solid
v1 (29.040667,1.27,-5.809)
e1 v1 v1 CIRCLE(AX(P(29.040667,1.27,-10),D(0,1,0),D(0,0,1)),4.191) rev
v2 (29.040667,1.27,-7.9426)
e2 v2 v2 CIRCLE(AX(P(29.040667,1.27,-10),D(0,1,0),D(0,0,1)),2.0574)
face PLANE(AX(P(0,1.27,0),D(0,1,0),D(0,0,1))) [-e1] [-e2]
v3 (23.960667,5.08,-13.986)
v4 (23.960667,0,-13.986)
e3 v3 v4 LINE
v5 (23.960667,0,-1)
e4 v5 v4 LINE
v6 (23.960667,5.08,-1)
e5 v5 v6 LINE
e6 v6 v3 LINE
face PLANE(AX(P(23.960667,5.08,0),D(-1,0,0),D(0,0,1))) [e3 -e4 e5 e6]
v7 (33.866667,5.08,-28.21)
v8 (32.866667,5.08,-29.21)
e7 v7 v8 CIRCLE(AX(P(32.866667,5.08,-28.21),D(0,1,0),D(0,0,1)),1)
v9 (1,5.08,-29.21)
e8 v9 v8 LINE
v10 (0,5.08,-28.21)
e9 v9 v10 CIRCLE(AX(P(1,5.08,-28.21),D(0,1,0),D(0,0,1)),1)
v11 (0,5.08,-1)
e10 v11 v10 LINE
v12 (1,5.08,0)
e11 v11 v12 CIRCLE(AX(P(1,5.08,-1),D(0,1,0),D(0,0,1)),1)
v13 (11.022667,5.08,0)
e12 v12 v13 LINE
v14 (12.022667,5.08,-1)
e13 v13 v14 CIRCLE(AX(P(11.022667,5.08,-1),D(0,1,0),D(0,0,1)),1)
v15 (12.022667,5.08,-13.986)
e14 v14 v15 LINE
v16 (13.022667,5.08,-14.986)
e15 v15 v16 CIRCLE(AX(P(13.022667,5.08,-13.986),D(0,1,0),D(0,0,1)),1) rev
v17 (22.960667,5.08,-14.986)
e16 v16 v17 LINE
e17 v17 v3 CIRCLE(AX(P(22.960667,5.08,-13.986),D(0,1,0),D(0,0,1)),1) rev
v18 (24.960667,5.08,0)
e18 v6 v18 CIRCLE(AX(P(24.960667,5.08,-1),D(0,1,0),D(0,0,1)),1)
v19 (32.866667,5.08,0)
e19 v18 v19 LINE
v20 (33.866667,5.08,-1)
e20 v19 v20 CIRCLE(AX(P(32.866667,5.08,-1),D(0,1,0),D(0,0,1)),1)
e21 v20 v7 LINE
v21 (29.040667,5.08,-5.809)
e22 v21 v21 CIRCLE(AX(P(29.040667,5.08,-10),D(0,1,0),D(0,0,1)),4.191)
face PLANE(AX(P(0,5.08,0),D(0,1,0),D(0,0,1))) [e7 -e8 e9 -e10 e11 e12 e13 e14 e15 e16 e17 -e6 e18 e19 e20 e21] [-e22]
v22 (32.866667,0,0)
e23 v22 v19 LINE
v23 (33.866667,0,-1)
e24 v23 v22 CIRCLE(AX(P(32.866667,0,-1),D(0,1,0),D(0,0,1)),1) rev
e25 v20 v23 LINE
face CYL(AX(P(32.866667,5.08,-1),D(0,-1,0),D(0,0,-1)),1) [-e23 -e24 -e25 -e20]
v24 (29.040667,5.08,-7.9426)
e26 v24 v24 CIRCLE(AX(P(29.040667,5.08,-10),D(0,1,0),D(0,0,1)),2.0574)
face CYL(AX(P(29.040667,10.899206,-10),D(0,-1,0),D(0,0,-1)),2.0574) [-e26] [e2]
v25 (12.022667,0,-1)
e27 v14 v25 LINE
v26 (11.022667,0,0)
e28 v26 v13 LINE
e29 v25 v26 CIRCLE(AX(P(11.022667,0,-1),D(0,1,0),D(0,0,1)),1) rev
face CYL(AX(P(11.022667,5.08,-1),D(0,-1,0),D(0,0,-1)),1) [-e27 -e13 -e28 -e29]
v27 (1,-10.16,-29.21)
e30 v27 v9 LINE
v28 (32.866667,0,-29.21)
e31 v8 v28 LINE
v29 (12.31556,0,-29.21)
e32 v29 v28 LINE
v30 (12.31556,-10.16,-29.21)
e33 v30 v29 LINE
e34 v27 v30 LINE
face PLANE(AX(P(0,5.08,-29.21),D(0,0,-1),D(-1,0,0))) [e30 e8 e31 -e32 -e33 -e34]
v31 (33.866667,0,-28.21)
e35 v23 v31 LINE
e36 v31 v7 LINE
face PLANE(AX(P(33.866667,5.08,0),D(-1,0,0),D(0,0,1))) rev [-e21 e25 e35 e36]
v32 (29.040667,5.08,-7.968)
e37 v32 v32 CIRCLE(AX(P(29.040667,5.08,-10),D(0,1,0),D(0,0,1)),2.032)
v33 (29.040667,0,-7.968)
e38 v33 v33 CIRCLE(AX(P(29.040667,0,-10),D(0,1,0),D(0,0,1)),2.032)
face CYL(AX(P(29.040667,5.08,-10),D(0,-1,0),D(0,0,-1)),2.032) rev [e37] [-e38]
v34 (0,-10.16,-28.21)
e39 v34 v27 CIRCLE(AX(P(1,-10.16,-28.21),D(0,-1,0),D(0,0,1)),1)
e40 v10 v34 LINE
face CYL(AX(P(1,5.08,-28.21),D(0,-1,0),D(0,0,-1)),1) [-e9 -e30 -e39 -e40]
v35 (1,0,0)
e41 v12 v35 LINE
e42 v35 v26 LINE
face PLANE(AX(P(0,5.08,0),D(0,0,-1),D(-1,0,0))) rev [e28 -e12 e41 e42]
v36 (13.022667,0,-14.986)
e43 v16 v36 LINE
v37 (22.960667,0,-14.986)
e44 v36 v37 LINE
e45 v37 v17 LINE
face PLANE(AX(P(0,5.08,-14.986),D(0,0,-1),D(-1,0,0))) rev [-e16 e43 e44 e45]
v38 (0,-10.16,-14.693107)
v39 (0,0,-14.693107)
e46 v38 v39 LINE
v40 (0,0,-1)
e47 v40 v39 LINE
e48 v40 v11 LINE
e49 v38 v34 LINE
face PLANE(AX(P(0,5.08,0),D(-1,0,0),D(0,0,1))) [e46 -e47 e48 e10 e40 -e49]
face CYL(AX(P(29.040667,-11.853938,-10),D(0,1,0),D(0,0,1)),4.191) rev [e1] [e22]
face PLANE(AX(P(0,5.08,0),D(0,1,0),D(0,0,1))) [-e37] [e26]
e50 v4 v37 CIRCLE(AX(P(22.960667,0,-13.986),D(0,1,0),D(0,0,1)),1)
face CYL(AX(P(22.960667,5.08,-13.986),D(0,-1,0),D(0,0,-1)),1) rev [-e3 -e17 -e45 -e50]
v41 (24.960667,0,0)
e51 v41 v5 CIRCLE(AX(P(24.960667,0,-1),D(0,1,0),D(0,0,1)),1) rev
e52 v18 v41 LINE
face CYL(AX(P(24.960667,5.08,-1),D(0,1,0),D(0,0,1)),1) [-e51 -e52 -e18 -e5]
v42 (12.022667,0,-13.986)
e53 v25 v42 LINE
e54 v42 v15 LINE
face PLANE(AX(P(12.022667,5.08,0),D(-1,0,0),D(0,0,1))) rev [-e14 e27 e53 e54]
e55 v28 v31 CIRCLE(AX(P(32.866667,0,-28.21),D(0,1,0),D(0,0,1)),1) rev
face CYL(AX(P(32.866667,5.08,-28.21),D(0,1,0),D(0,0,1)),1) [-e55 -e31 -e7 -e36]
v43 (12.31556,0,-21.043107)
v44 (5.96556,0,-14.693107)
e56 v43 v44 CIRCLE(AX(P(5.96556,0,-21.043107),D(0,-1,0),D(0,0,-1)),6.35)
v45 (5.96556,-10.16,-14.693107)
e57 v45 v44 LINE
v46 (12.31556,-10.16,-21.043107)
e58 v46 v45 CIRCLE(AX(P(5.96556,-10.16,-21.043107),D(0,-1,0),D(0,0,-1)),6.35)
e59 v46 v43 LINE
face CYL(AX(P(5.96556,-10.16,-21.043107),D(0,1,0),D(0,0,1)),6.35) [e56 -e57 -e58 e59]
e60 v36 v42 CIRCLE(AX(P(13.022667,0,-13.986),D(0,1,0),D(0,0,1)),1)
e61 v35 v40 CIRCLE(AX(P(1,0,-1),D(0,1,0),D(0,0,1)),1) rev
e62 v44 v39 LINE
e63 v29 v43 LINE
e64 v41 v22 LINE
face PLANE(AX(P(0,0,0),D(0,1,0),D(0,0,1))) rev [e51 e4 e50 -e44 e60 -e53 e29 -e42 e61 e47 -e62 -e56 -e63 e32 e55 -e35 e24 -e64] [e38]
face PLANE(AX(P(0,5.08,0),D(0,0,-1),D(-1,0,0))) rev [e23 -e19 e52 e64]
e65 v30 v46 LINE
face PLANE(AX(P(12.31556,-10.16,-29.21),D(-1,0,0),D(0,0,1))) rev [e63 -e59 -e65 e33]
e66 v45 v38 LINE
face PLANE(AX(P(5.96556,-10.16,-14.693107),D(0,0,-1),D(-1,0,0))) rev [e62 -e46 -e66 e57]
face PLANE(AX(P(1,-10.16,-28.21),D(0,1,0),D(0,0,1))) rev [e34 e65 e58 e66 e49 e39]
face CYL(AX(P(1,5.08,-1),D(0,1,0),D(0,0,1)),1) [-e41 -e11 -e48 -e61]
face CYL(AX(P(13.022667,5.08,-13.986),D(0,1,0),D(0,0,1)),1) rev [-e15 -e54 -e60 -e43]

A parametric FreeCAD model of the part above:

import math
import FreeCAD as App
import Part
import Sketcher

V = App.Vector
Q = App.Units.Quantity


def edges_at(feature, points):
    """Names of the edges that pass closest to the given points."""
    edges = feature.Shape.Edges
    near = lambda p: min(range(len(edges)), key=lambda i: edges[i].distToShape(Part.Vertex(*p))[0])
    return sorted({f"Edge{near(p) + 1}" for p in points})

doc = App.newDocument("Part")
body = doc.addObject("PartDesign::Body", "Body")

# Sketch on XZ plane
sketch1 = body.newObject("Sketcher::SketchObject", "Sketch")
sketch1.AttachmentSupport = (doc.getObject("XZ_Plane"), [""])
sketch1.MapMode = "FlatFace"
sketch1.addGeometry([
    Part.LineSegment(V(0, -29.2, 0), V(0, 0, 0)),  # 0
    Part.LineSegment(V(0, 0, 0), V(12, 0, 0)),  # 1
    Part.LineSegment(V(12, 0, 0), V(12, -15, 0)),  # 2
    Part.LineSegment(V(12, -15, 0), V(24, -15, 0)),  # 3
    Part.LineSegment(V(24, -15, 0), V(24, 0, 0)),  # 4
    Part.LineSegment(V(24, 0, 0), V(33.9, 0, 0)),  # 5
    Part.LineSegment(V(33.9, 0, 0), V(33.9, -29.2, 0)),  # 6
    Part.LineSegment(V(33.9, -29.2, 0), V(0, -29.2, 0)),  # 7
    Part.Circle(V(29, -10, 0), V(0, 0, 1), 2),  # 8
], False)
sketch1.addConstraint([
    Sketcher.Constraint("Coincident", 0, 2, 1, 1),
    Sketcher.Constraint("Coincident", 1, 2, 2, 1),
    Sketcher.Constraint("Coincident", 2, 2, 3, 1),
    Sketcher.Constraint("Coincident", 3, 2, 4, 1),
    Sketcher.Constraint("Coincident", 4, 2, 5, 1),
    Sketcher.Constraint("Coincident", 5, 2, 6, 1),
    Sketcher.Constraint("Coincident", 6, 2, 7, 1),
    Sketcher.Constraint("Coincident", 7, 2, 0, 1),
    Sketcher.Constraint("Vertical", 0),
    Sketcher.Constraint("Horizontal", 1),
    Sketcher.Constraint("Vertical", 2),
    Sketcher.Constraint("Horizontal", 3),
    Sketcher.Constraint("Vertical", 4),
    Sketcher.Constraint("Horizontal", 5),
    Sketcher.Constraint("Vertical", 6),
    Sketcher.Constraint("Horizontal", 7),
    Sketcher.Constraint("Coincident", 0, 2, -1, 1),
    Sketcher.Constraint("PointOnObject", 4, 2, -1),
    Sketcher.Constraint("Diameter", 8, Q("0.16 in")),
    Sketcher.Constraint("DistanceX", 3, 1, 3, 2, Q("0.47 in")),
    Sketcher.Constraint("DistanceX", 5, 1, 5, 2, Q("0.39 in")),
    Sketcher.Constraint("DistanceY", 0, 1, 0, 2, Q("1.15 in")),
    Sketcher.Constraint("DistanceY", 2, 2, 2, 1, Q("0.59 in")),
    Sketcher.Constraint("DistanceX", 3, 2, 8, 3, Q("0.2 in")),
    Sketcher.Constraint("DistanceY", 8, 3, -1, 1, Q("10 mm")),
    Sketcher.Constraint("DistanceX", 1, 1, 1, 2, Q("12.022667 mm")),
])
pad1 = body.newObject("PartDesign::Pad", "Pad")
pad1.Profile = sketch1
pad1.Length = Q("0.2 in")
pad1.Reversed = True
doc.recompute()

fillet = body.newObject("PartDesign::Fillet", "Fillet")
fillet.Base = (pad1, edges_at(pad1, [
    (23.961, 2.54, -14.986),
    (12.023, 2.54, -14.986),
    (12.023, 2.54, 0),
    (0, 2.54, 0),
    (0, 2.54, -29.21),
    (33.867, 2.54, -29.21),
    (33.867, 2.54, 0),
    (23.961, 2.54, 0),
]))
fillet.Radius = 1

# Sketch on XZ plane
sketch2 = body.newObject("Sketcher::SketchObject", "Sketch001")
sketch2.AttachmentSupport = (doc.getObject("XZ_Plane"), [""])
sketch2.MapMode = "FlatFace"
sketch2.AttachmentOffset = App.Placement(V(0, 0, -0.2 * 25.4), App.Rotation())
sketch2.addGeometry(Part.Circle(V(29, -10, 0), V(0, 0, 1), 4.2), False)
sketch2.addConstraint([
    Sketcher.Constraint("Diameter", 0, Q("0.33 in")),
    Sketcher.Constraint("DistanceY", 0, 3, -1, 1, Q("10 mm")),
    Sketcher.Constraint("DistanceX", -1, 1, 0, 3, Q("29.040667 mm")),
])
pocket1 = body.newObject("PartDesign::Pocket", "Pocket")
pocket1.Profile = sketch2
pocket1.Length = Q("0.15 in")
pocket1.Reversed = True

# Sketch on XZ plane
sketch3 = body.newObject("Sketcher::SketchObject", "Sketch002")
sketch3.AttachmentSupport = (doc.getObject("XZ_Plane"), [""])
sketch3.MapMode = "FlatFace"
sketch3.AttachmentOffset = App.Placement(V(0, 0, -0.05 * 25.4), App.Rotation())
sketch3.addGeometry([
    Part.Circle(V(29, -10, 0), V(0, 0, 1), 2.1),
    Part.Circle(V(29, -10, 0), V(0, 0, 1), 2),
], False)
sketch3.addConstraint([
    Sketcher.Constraint("Coincident", 1, 3, 0, 3),
    Sketcher.Constraint("Diameter", 1, Q("0.16 in")),
    Sketcher.Constraint("Diameter", 0, Q("0.162 in")),
    Sketcher.Constraint("DistanceY", 0, 3, -1, 1, Q("10 mm")),
    Sketcher.Constraint("DistanceX", -1, 1, 0, 3, Q("29.040667 mm")),
])
pad2 = body.newObject("PartDesign::Pad", "Pad001")
pad2.Profile = sketch3
pad2.Length = Q("0.15 in")
pad2.Reversed = True

# Sketch on XZ plane
sketch4 = body.newObject("Sketcher::SketchObject", "Sketch003")
sketch4.AttachmentSupport = (doc.getObject("XZ_Plane"), [""])
sketch4.MapMode = "FlatFace"
sketch4.addGeometry([
    Part.LineSegment(V(1, -29.2, 0), V(12.3, -29.2, 0)),  # 0
    Part.LineSegment(V(12.3, -29.2, 0), V(12.3, -21, 0)),  # 1
    Part.ArcOfCircle(Part.Circle(V(6, -21, 0), V(0, 0, 1), 6.3), math.radians(0), math.radians(90)),  # 2
    Part.LineSegment(V(6, -14.7, 0), V(0, -14.7, 0)),  # 3
    Part.LineSegment(V(0, -14.7, 0), V(0, -28.2, 0)),  # 4
    Part.ArcOfCircle(Part.Circle(V(1, -28.2, 0), V(0, 0, 1), 1), math.radians(-180), math.radians(-90)),  # 5
], False)
sketch4.addConstraint([
    Sketcher.Constraint("Coincident", 0, 2, 1, 1),
    Sketcher.Constraint("Tangent", 1, 2, 2, 1),
    Sketcher.Constraint("Tangent", 2, 2, 3, 1),
    Sketcher.Constraint("Coincident", 3, 2, 4, 1),
    Sketcher.Constraint("Tangent", 4, 2, 5, 1),
    Sketcher.Constraint("Tangent", 5, 2, 0, 1),
    Sketcher.Constraint("Horizontal", 0),
    Sketcher.Constraint("Vertical", 1),
    Sketcher.Constraint("Horizontal", 3),
    Sketcher.Constraint("Vertical", 4),
    Sketcher.Constraint("PointOnObject", 3, 2, -2),
    Sketcher.Constraint("Radius", 2, Q("0.25 in")),
    Sketcher.Constraint("DistanceY", 0, 2, -1, 1, Q("1.15 in")),
    Sketcher.Constraint("Radius", 5, Q("1 mm")),
    Sketcher.Constraint("DistanceX", 0, 1, 0, 2, Q("11.31556 mm")),
    Sketcher.Constraint("DistanceY", 1, 1, 1, 2, Q("8.166893 mm")),
])
pad3 = body.newObject("PartDesign::Pad", "Pad002")
pad3.Profile = sketch4
pad3.Length = Q("0.4 in")

doc.recompute()
